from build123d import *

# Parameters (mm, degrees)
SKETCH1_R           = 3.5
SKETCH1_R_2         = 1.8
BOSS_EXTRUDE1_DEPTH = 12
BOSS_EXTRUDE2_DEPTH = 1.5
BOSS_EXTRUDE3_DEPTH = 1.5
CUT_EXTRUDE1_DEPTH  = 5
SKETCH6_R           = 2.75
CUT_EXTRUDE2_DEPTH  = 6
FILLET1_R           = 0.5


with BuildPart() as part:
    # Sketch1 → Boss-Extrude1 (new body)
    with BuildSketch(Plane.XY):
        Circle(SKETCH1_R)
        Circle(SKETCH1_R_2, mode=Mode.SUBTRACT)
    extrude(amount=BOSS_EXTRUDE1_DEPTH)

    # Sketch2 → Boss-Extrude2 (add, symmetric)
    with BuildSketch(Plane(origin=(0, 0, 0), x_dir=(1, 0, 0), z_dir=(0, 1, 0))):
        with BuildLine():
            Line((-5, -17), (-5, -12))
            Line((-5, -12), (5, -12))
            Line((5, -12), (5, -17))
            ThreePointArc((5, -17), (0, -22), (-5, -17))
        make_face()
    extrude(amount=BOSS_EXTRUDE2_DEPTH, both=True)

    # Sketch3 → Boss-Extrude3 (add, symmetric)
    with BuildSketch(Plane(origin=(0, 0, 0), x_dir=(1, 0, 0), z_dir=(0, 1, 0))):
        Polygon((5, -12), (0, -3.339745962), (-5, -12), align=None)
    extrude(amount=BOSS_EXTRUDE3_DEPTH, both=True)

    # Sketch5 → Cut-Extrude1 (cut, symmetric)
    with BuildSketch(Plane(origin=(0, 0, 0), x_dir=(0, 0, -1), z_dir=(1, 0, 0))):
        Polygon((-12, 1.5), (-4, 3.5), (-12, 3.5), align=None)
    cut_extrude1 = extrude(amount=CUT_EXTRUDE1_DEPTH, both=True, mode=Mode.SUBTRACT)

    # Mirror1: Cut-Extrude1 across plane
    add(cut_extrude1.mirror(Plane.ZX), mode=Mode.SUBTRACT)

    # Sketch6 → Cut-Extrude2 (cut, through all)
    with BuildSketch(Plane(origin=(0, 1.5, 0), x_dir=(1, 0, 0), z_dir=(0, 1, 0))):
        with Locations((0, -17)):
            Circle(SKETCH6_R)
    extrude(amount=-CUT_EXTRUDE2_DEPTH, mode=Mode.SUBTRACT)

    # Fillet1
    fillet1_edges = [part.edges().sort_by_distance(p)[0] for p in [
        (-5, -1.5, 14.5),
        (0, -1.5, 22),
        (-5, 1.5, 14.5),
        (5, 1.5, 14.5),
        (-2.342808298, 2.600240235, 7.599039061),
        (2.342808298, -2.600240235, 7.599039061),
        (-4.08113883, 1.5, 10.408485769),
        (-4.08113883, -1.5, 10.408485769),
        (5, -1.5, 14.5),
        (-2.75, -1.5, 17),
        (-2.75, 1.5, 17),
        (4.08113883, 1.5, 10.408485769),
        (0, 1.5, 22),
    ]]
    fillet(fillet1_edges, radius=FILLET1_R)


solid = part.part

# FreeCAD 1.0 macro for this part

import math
import FreeCAD as App
import Part
import Sketcher

V = App.Vector
Q = App.Units.Quantity


def edges_at(feature, points):
    """Names of the edges that pass closest to the given points."""
    edges = feature.Shape.Edges
    near = lambda p: min(range(len(edges)), key=lambda i: edges[i].distToShape(Part.Vertex(*p))[0])
    return sorted({f"Edge{near(p) + 1}" for p in points})


def add_polygon(sketch, points):
    """Adds a closed chain of lines whose ends are joined by coincident constraints."""
    first, n = sketch.GeometryCount, len(points)
    for a, b in zip(points, points[1:] + points[:1]):
        sketch.addGeometry(Part.LineSegment(App.Vector(*a, 0), App.Vector(*b, 0)), False)
    for i in range(n):
        sketch.addConstraint(Sketcher.Constraint("Coincident", first + i, 2, first + (i + 1) % n, 1))

doc = App.newDocument("Part")
body = doc.addObject("PartDesign::Body", "Body")

# Sketch on XY plane
sketch1 = body.newObject("Sketcher::SketchObject", "Sketch")
sketch1.AttachmentSupport = (doc.getObject("XY_Plane"), [""])
sketch1.MapMode = "FlatFace"
sketch1.addGeometry(Part.Circle(V(0, 0, 0), V(0, 0, 1), 3.5), False)
sketch1.addGeometry(Part.Circle(V(0, 0, 0), V(0, 0, 1), 1.8), False)
sketch1.addConstraint(Sketcher.Constraint("Coincident", 0, 3, -1, 1))
sketch1.addConstraint(Sketcher.Constraint("Coincident", 1, 3, -1, 1))
sketch1.addConstraint(Sketcher.Constraint("Diameter", 0, 7.0))
sketch1.addConstraint(Sketcher.Constraint("Diameter", 1, 3.6))
pad1 = body.newObject("PartDesign::Pad", "Pad")
pad1.Profile = sketch1
pad1.Length = 12

# Sketch on XZ plane
sketch2 = body.newObject("Sketcher::SketchObject", "Sketch001")
sketch2.AttachmentSupport = (doc.getObject("XZ_Plane"), [""])
sketch2.MapMode = "FlatFace"
sketch2.addGeometry(Part.LineSegment(V(-5, 12, 0), V(-5, 17, 0)), False)
sketch2.addGeometry(Part.ArcOfCircle(Part.Circle(V(0, 17, 0), V(0, 0, 1), 5), math.radians(0), math.radians(180)), False)
sketch2.addGeometry(Part.LineSegment(V(5, 17, 0), V(5, 12, 0)), False)
sketch2.addGeometry(Part.LineSegment(V(5, 12, 0), V(-5, 12, 0)), False)
sketch2.addConstraint(Sketcher.Constraint("Tangent", 0, 2, 1, 2))
sketch2.addConstraint(Sketcher.Constraint("Tangent", 1, 1, 2, 1))
sketch2.addConstraint(Sketcher.Constraint("Coincident", 2, 2, 3, 1))
sketch2.addConstraint(Sketcher.Constraint("Coincident", 3, 2, 0, 1))
sketch2.addConstraint(Sketcher.Constraint("Vertical", 0))
sketch2.addConstraint(Sketcher.Constraint("Vertical", 2))
sketch2.addConstraint(Sketcher.Constraint("Horizontal", 3))
sketch2.addConstraint(Sketcher.Constraint("PointOnObject", 1, 3, -2))
sketch2.addConstraint(Sketcher.Constraint("Radius", 1, 5.0))
sketch2.addConstraint(Sketcher.Constraint("DistanceY", 0, 1, 0, 2, 5.0))
sketch2.addConstraint(Sketcher.Constraint("DistanceY", -1, 1, 1, 3, 17.0))
pad2 = body.newObject("PartDesign::Pad", "Pad001")
pad2.Profile = sketch2
pad2.Length = 3
pad2.Midplane = True

# Sketch on XZ plane
sketch3 = body.newObject("Sketcher::SketchObject", "Sketch002")
sketch3.AttachmentSupport = (doc.getObject("XZ_Plane"), [""])
sketch3.MapMode = "FlatFace"
add_polygon(sketch3, [(5, 12), (0, 3), (-5, 12)])  # lines 0-2
sketch3.addConstraint(Sketcher.Constraint("Horizontal", 2))
sketch3.addConstraint(Sketcher.Constraint("PointOnObject", 0, 2, -2))
sketch3.addConstraint(Sketcher.Constraint("Equal", 0, 1))
sketch3.addConstraint(Sketcher.Constraint("DistanceX", 2, 1, 2, 2, 10.0))
sketch3.addConstraint(Sketcher.Constraint("Angle", 0, Q("-120 deg")))
sketch3.addConstraint(Sketcher.Constraint("DistanceY", -1, 1, 1, 2, 12.0))
pad3 = body.newObject("PartDesign::Pad", "Pad002")
pad3.Profile = sketch3
pad3.Length = 3
pad3.Midplane = True

# Sketch on YZ plane
sketch4 = body.newObject("Sketcher::SketchObject", "Sketch003")
sketch4.AttachmentSupport = (doc.getObject("YZ_Plane"), [""])
sketch4.MapMode = "FlatFace"
add_polygon(sketch4, [(1.5, 12), (3.5, 4), (3.5, 12)])  # lines 0-2
sketch4.addConstraint(Sketcher.Constraint("Vertical", 1))
sketch4.addConstraint(Sketcher.Constraint("Horizontal", 2))
sketch4.addConstraint(Sketcher.Constraint("DistanceX", 2, 2, 2, 1, 2.0))
sketch4.addConstraint(Sketcher.Constraint("DistanceY", 1, 1, 1, 2, 8.0))
sketch4.addConstraint(Sketcher.Constraint("DistanceY", -1, 1, 0, 2, 4.0))
sketch4.addConstraint(Sketcher.Constraint("DistanceX", -1, 1, 0, 2, 3.5))
pocket1 = body.newObject("PartDesign::Pocket", "Pocket")
pocket1.Profile = sketch4
pocket1.Length = 10
pocket1.Midplane = True
doc.recompute()

mirrored = body.newObject("PartDesign::Mirrored", "Mirrored")
mirrored.Originals = [pocket1]
mirrored.MirrorPlane = (doc.getObject("XZ_Plane"), [""])
body.Tip = mirrored

# Sketch on XZ plane
sketch5 = body.newObject("Sketcher::SketchObject", "Sketch004")
sketch5.AttachmentSupport = (doc.getObject("XZ_Plane"), [""])
sketch5.MapMode = "FlatFace"
sketch5.AttachmentOffset = App.Placement(V(0, 0, -1.5), App.Rotation())
sketch5.addGeometry(Part.Circle(V(0, 17, 0), V(0, 0, 1), 2.8), False)
sketch5.addConstraint(Sketcher.Constraint("PointOnObject", 0, 3, -2))
sketch5.addConstraint(Sketcher.Constraint("Diameter", 0, 5.5))
sketch5.addConstraint(Sketcher.Constraint("DistanceY", -1, 1, 0, 3, 17.0))
pocket2 = body.newObject("PartDesign::Pocket", "Pocket001")
pocket2.Profile = sketch5
pocket2.Type = "ThroughAll"
pocket2.Reversed = True
doc.recompute()

fillet = body.newObject("PartDesign::Fillet", "Fillet")
fillet.Base = (pocket2, edges_at(pocket2, [
    (-5, -1.5, 14.5),
    (0, -1.5, 22),
    (-5, 1.5, 14.5),
    (5, 1.5, 14.5),
    (-2.343, 2.6, 7.599),
    (2.343, -2.6, 7.599),
    (-4.081, 1.5, 10.408),
    (-4.081, -1.5, 10.408),
    (5, -1.5, 14.5),
    (-2.75, -1.5, 17),
    (-2.75, 1.5, 17),
    (4.081, 1.5, 10.408),
    (0, 1.5, 22),
]))
fillet.Radius = 0.5

doc.recompute()
